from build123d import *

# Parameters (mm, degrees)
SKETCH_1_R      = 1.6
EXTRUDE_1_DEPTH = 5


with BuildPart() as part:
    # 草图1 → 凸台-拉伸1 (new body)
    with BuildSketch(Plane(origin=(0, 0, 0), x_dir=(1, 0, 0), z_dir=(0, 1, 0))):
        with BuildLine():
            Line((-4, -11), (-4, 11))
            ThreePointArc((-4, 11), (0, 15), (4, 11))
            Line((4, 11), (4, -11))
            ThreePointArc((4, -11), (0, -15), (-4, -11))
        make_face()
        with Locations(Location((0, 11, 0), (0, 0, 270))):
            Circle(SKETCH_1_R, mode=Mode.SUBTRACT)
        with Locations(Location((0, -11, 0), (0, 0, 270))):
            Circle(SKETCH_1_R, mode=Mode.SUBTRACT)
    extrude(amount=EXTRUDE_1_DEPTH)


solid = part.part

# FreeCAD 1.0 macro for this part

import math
import FreeCAD as App
import Part
import Sketcher
from FreeCAD import Vector
Q = App.Units.Quantity

doc = App.newDocument("Part")
body = doc.addObject("PartDesign::Body", "Body")

# Sketch on XZ plane
sketch1 = body.newObject("Sketcher::SketchObject", "Sketch")
sketch1.AttachmentSupport = (doc.getObject("XZ_Plane"), [""])
sketch1.MapMode = "FlatFace"
sketch1.addGeometry(Part.LineSegment(Vector(-4, -11, 0), Vector(-4, 11, 0)), False)
sketch1.addGeometry(Part.ArcOfCircle(Part.Circle(Vector(0, 11, 0), Vector(0, 0, 1), 4), math.radians(0), math.radians(180)), False)
sketch1.addGeometry(Part.LineSegment(Vector(4, 11, 0), Vector(4, -11, 0)), False)
sketch1.addGeometry(Part.ArcOfCircle(Part.Circle(Vector(0, -11, 0), Vector(0, 0, 1), 4), math.radians(180), math.radians(360)), False)
sketch1.addGeometry(Part.Circle(Vector(0, 11, 0), Vector(0, 0, 1), 1.6), False)
sketch1.addGeometry(Part.Circle(Vector(0, -11, 0), Vector(0, 0, 1), 1.6), False)
sketch1.addConstraint(Sketcher.Constraint("Tangent", 0, 2, 1, 2))
sketch1.addConstraint(Sketcher.Constraint("Tangent", 1, 1, 2, 1))
sketch1.addConstraint(Sketcher.Constraint("Tangent", 2, 2, 3, 2))
sketch1.addConstraint(Sketcher.Constraint("Tangent", 3, 1, 0, 1))
sketch1.addConstraint(Sketcher.Constraint("Vertical", 0))
sketch1.addConstraint(Sketcher.Constraint("Vertical", 2))
sketch1.addConstraint(Sketcher.Constraint("Coincident", 4, 3, 1, 3))
sketch1.addConstraint(Sketcher.Constraint("Coincident", 5, 3, 3, 3))
sketch1.addConstraint(Sketcher.Constraint("Equal", 4, 5))
sketch1.addConstraint(Sketcher.Constraint("Symmetric", 1, 3, 3, 3, -1, 1))
sketch1.addConstraint(Sketcher.Constraint("Radius", 1, Q("4 mm")))
sketch1.addConstraint(Sketcher.Constraint("Diameter", 4, Q("3.2 mm")))
sketch1.addConstraint(Sketcher.Constraint("DistanceY", 0, 1, 0, 2, Q("22 mm")))
pad1 = body.newObject("PartDesign::Pad", "Pad")
pad1.Profile = sketch1
pad1.Length = 5
pad1.Reversed = True

doc.recompute()
